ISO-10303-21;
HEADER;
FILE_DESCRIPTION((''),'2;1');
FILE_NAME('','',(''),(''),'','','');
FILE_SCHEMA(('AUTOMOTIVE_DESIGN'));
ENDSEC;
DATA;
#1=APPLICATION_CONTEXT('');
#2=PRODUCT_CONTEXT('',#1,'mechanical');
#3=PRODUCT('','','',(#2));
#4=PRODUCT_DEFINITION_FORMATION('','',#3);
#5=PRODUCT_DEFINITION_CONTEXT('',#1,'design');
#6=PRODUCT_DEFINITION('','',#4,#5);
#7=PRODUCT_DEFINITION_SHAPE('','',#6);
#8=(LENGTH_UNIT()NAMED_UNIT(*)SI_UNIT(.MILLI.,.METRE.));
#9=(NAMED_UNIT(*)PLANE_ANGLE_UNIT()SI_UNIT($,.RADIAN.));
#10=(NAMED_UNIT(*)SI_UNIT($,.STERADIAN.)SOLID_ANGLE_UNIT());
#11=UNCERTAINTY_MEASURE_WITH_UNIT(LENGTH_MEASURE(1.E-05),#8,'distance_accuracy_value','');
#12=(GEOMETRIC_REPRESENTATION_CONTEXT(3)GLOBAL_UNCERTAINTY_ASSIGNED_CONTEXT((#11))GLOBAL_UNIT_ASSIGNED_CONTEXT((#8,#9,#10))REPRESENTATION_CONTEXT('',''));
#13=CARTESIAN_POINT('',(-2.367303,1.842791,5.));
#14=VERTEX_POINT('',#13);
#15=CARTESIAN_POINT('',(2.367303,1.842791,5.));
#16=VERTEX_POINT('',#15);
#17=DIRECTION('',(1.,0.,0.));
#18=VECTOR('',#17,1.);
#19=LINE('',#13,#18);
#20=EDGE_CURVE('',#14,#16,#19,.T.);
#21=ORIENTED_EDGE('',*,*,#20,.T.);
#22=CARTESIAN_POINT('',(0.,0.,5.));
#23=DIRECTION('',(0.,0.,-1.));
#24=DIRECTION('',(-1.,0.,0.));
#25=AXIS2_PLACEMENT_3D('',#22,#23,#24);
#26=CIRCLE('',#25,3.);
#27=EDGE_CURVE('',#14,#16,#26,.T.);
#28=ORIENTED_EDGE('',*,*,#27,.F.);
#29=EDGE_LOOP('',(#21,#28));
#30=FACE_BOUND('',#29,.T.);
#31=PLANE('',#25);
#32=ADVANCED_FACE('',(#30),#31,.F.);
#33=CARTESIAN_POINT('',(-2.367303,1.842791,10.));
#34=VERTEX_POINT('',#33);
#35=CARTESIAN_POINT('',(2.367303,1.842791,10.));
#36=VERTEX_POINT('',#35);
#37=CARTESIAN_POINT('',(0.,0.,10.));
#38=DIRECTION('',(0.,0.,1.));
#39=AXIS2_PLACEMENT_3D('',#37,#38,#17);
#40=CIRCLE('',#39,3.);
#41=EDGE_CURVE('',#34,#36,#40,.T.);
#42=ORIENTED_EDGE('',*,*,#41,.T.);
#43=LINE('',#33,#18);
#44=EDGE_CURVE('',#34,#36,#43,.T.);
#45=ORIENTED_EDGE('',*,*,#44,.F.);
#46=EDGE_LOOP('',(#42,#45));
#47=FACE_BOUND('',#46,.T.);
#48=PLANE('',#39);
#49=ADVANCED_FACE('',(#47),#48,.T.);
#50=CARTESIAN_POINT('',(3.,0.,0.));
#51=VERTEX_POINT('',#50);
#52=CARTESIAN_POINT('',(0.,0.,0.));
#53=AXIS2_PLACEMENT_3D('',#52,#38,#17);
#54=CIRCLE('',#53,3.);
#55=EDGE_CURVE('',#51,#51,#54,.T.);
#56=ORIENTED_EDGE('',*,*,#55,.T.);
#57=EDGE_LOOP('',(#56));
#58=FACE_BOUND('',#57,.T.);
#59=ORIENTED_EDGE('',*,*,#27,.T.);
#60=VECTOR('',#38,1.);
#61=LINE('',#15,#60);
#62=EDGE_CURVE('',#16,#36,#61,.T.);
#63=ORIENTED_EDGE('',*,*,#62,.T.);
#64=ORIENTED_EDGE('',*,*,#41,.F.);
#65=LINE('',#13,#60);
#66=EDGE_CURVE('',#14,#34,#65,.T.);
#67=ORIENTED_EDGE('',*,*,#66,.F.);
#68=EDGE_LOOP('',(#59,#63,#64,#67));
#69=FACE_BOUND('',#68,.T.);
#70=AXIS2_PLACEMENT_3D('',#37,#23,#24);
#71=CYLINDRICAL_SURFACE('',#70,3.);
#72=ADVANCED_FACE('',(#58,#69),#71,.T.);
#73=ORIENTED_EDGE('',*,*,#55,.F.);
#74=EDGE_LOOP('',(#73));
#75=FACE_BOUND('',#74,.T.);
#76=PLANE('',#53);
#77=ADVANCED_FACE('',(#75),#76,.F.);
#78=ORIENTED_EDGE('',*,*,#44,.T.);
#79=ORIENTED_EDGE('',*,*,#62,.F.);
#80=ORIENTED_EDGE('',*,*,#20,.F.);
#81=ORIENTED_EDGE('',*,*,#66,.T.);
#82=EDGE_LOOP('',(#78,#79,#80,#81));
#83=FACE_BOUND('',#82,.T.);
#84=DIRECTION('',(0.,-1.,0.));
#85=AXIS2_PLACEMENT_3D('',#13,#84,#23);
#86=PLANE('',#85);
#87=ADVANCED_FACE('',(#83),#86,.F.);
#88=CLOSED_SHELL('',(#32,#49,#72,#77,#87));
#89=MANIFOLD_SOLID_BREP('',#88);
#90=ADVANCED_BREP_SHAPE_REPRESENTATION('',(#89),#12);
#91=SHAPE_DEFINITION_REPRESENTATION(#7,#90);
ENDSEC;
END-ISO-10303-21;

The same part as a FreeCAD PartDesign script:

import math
import FreeCAD as App
import Part
import Sketcher

V = App.Vector
Q = App.Units.Quantity

doc = App.newDocument("Part")
body = doc.addObject("PartDesign::Body", "Body")

# Sketch on XY plane
sketch1 = body.newObject("Sketcher::SketchObject", "Sketch")
sketch1.AttachmentSupport = (doc.getObject("XY_Plane"), [""])
sketch1.MapMode = "FlatFace"
sketch1.addGeometry(Part.Circle(V(0, 0, 0), V(0, 0, 1), 3), False)
sketch1.addConstraint([
    Sketcher.Constraint("Coincident", 0, 3, -1, 1),
    Sketcher.Constraint("Diameter", 0, Q("6 mm")),
])
pad1 = body.newObject("PartDesign::Pad", "Pad")
pad1.Profile = sketch1
pad1.Length = 10

# Sketch on XY plane
sketch2 = body.newObject("Sketcher::SketchObject", "Sketch001")
sketch2.AttachmentSupport = (doc.getObject("XY_Plane"), [""])
sketch2.MapMode = "FlatFace"
sketch2.AttachmentOffset = App.Placement(V(0, 0, 10), App.Rotation())
sketch2.addGeometry([
    Part.LineSegment(V(-2.4, 1.8, 0), V(2.4, 1.8, 0)),
    Part.ArcOfCircle(Part.Circle(V(0, 0, 0), V(0, 0, 1), 3), math.radians(38), math.radians(142)),
], False)
sketch2.addConstraint([
    Sketcher.Constraint("Coincident", 0, 1, 1, 2),
    Sketcher.Constraint("Coincident", 1, 1, 0, 2),
    Sketcher.Constraint("Horizontal", 0),
    Sketcher.Constraint("Coincident", 1, 3, -1, 1),
    Sketcher.Constraint("Radius", 1, Q("3 mm")),
    Sketcher.Constraint("DistanceX", 0, 1, 0, 2, Q("4.734605 mm")),
])
pocket1 = body.newObject("PartDesign::Pocket", "Pocket")
pocket1.Profile = sketch2
pocket1.Length = 5

doc.recompute()
